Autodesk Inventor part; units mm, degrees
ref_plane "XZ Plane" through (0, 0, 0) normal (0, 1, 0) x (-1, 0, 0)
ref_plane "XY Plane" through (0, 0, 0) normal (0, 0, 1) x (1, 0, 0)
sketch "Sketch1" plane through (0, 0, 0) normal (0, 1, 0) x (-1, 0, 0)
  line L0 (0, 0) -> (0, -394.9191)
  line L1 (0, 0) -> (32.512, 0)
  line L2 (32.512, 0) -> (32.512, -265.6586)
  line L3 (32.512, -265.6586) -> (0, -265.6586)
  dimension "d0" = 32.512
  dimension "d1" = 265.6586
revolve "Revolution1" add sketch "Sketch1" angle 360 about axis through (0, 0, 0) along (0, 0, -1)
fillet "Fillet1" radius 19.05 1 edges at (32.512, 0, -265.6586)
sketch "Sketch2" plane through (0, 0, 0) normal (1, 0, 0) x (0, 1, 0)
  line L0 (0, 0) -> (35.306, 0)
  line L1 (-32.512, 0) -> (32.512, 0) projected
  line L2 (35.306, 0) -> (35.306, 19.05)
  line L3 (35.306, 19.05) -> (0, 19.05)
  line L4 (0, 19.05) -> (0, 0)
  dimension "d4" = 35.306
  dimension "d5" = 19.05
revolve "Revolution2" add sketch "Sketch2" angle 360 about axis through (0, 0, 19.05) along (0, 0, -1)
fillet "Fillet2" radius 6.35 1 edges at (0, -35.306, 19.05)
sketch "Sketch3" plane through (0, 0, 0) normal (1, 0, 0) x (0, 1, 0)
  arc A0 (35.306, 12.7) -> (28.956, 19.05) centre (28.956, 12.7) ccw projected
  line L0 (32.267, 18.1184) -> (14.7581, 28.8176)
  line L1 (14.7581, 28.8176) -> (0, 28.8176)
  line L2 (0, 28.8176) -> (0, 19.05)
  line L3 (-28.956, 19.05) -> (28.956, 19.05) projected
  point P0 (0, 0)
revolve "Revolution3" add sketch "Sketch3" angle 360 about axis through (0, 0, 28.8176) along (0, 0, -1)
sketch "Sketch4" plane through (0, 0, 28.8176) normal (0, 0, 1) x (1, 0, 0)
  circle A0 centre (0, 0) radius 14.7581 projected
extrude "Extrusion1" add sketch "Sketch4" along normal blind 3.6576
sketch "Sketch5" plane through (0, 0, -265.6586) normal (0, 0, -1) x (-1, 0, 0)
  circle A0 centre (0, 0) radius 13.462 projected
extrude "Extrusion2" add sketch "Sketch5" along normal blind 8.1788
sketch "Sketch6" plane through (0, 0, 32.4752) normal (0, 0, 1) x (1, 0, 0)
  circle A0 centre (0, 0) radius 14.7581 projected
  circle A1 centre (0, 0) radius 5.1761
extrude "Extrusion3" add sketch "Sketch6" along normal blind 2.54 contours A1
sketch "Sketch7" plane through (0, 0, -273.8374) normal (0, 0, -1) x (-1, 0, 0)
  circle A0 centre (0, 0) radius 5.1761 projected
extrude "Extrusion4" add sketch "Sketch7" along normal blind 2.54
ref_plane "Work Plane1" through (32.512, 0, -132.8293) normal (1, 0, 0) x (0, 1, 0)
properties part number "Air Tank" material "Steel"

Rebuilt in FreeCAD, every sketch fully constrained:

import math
import FreeCAD as App
import Part
import Sketcher
Q = App.Units.Quantity


def edges_at(feature, points):
    """Names of the edges that pass closest to the given points."""
    edges = feature.Shape.Edges
    near = lambda p: min(range(len(edges)), key=lambda i: edges[i].distToShape(Part.Vertex(*p))[0])
    return sorted({f"Edge{near(p) + 1}" for p in points})

doc = App.newDocument("Part")
params = doc.addObject("Spreadsheet::Sheet", "Params")
for row, (alias, value) in enumerate([
    ("sketch1_width", "1.28 in"),
    ("sketch1_height", "10.459 in"),
    ("revolution_angle", "360 deg"),
    ("fillet_radius", "0.75 in"),
    ("sketch2_width", "1.39 in"),
    ("sketch2_height", "0.75 in"),
    ("revolution2_angle", "360 deg"),
    ("fillet2_radius", "0.25 in"),
    ("sketch3_radius", "0.25 in"),
    ("sketch3_width", "1.14 in"),
    ("revolution3_angle", "360 deg"),
    ("pad1_length", "0.144 in"),
    ("sketch5_diameter", "1.06 in"),
    ("pad2_length", "0.322 in"),
    ("pad3_length", "0.1 in"),
    ("pad4_length", "0.1 in"),
], start=1):
    params.set(f"A{row}", alias)
    params.set(f"B{row}", "=" + value)
    params.setAlias(f"B{row}", alias)

body = doc.addObject("PartDesign::Body", "Body")

# Sketch on XZ plane
sketch1 = body.newObject("Sketcher::SketchObject", "Sketch")
sketch1.AttachmentSupport = (doc.getObject("XZ_Plane"), [""])
sketch1.MapMode = "FlatFace"
sketch1.addGeometry(Part.LineSegment(App.Vector(-33, 0, 0), App.Vector(0, 0, 0)), False)
sketch1.addGeometry(Part.LineSegment(App.Vector(0, 0, 0), App.Vector(0, -266, 0)), False)
sketch1.addGeometry(Part.LineSegment(App.Vector(0, -266, 0), App.Vector(-33, -266, 0)), False)
sketch1.addGeometry(Part.LineSegment(App.Vector(-33, -266, 0), App.Vector(-33, 0, 0)), False)
sketch1.addConstraint(Sketcher.Constraint("Coincident", 0, 2, 1, 1))
sketch1.addConstraint(Sketcher.Constraint("Coincident", 1, 2, 2, 1))
sketch1.addConstraint(Sketcher.Constraint("Coincident", 2, 2, 3, 1))
sketch1.addConstraint(Sketcher.Constraint("Coincident", 3, 2, 0, 1))
sketch1.addConstraint(Sketcher.Constraint("Horizontal", 0))
sketch1.addConstraint(Sketcher.Constraint("Vertical", 1))
sketch1.addConstraint(Sketcher.Constraint("Horizontal", 2))
sketch1.addConstraint(Sketcher.Constraint("Vertical", 3))
sketch1.addConstraint(Sketcher.Constraint("Coincident", 0, 2, -1, 1))
sketch1.addConstraint(Sketcher.Constraint("DistanceX", 0, 1, 0, 2, Q("1.28 in")))
sketch1.addConstraint(Sketcher.Constraint("DistanceY", 1, 2, 1, 1, Q("10.459 in")))
sketch1.setExpression("Constraints[9]", "Params.sketch1_width")
sketch1.setExpression("Constraints[10]", "Params.sketch1_height")
revolution = body.newObject("PartDesign::Revolution", "Revolution")
revolution.Profile = sketch1
revolution.ReferenceAxis = (sketch1, ["V_Axis"])
revolution.setExpression("Angle", "Params.revolution_angle")
doc.recompute()

fillet = body.newObject("PartDesign::Fillet", "Fillet")
fillet.Base = (revolution, edges_at(revolution, [(32.512, 0, -265.659)]))
fillet.setExpression("Radius", "Params.fillet_radius")

# Sketch on YZ plane
sketch2 = body.newObject("Sketcher::SketchObject", "Sketch001")
sketch2.AttachmentSupport = (doc.getObject("YZ_Plane"), [""])
sketch2.MapMode = "FlatFace"
sketch2.addGeometry(Part.LineSegment(App.Vector(0, 19, 0), App.Vector(0, 0, 0)), False)
sketch2.addGeometry(Part.LineSegment(App.Vector(0, 0, 0), App.Vector(35, 0, 0)), False)
sketch2.addGeometry(Part.LineSegment(App.Vector(35, 0, 0), App.Vector(35, 19, 0)), False)
sketch2.addGeometry(Part.LineSegment(App.Vector(35, 19, 0), App.Vector(0, 19, 0)), False)
sketch2.addConstraint(Sketcher.Constraint("Coincident", 0, 2, 1, 1))
sketch2.addConstraint(Sketcher.Constraint("Coincident", 1, 2, 2, 1))
sketch2.addConstraint(Sketcher.Constraint("Coincident", 2, 2, 3, 1))
sketch2.addConstraint(Sketcher.Constraint("Coincident", 3, 2, 0, 1))
sketch2.addConstraint(Sketcher.Constraint("Vertical", 0))
sketch2.addConstraint(Sketcher.Constraint("Horizontal", 1))
sketch2.addConstraint(Sketcher.Constraint("Vertical", 2))
sketch2.addConstraint(Sketcher.Constraint("Horizontal", 3))
sketch2.addConstraint(Sketcher.Constraint("Coincident", 0, 2, -1, 1))
sketch2.addConstraint(Sketcher.Constraint("DistanceX", 1, 1, 1, 2, Q("1.39 in")))
sketch2.addConstraint(Sketcher.Constraint("DistanceY", 0, 2, 0, 1, Q("0.75 in")))
sketch2.setExpression("Constraints[9]", "Params.sketch2_width")
sketch2.setExpression("Constraints[10]", "Params.sketch2_height")
revolution2 = body.newObject("PartDesign::Revolution", "Revolution001")
revolution2.Profile = sketch2
revolution2.ReferenceAxis = (sketch2, ["V_Axis"])
revolution2.setExpression("Angle", "Params.revolution2_angle")
doc.recompute()

fillet2 = body.newObject("PartDesign::Fillet", "Fillet001")
fillet2.Base = (revolution2, edges_at(revolution2, [(0, -35.306, 19.05)]))
fillet2.setExpression("Radius", "Params.fillet2_radius")

# Sketch on YZ plane
sketch3 = body.newObject("Sketcher::SketchObject", "Sketch002")
sketch3.AttachmentSupport = (doc.getObject("YZ_Plane"), [""])
sketch3.MapMode = "FlatFace"
sketch3.addGeometry(Part.ArcOfCircle(Part.Circle(App.Vector(29, 12.7, 0), App.Vector(0, 0, 1), 6.3), math.radians(59), math.radians(90)), False)
sketch3.addGeometry(Part.LineSegment(App.Vector(32.3, 18.1, 0), App.Vector(14.8, 28.8, 0)), False)
sketch3.addGeometry(Part.LineSegment(App.Vector(14.8, 28.8, 0), App.Vector(0, 28.8, 0)), False)
sketch3.addGeometry(Part.LineSegment(App.Vector(0, 28.8, 0), App.Vector(0, 19.1, 0)), False)
sketch3.addGeometry(Part.LineSegment(App.Vector(0, 19.1, 0), App.Vector(29, 19.1, 0)), False)
sketch3.addConstraint(Sketcher.Constraint("Tangent", 0, 1, 1, 1))
sketch3.addConstraint(Sketcher.Constraint("Coincident", 1, 2, 2, 1))
sketch3.addConstraint(Sketcher.Constraint("Coincident", 2, 2, 3, 1))
sketch3.addConstraint(Sketcher.Constraint("Coincident", 3, 2, 4, 1))
sketch3.addConstraint(Sketcher.Constraint("Tangent", 4, 2, 0, 2))
sketch3.addConstraint(Sketcher.Constraint("Horizontal", 2))
sketch3.addConstraint(Sketcher.Constraint("Vertical", 3))
sketch3.addConstraint(Sketcher.Constraint("Horizontal", 4))
sketch3.addConstraint(Sketcher.Constraint("PointOnObject", 2, 2, -2))
sketch3.addConstraint(Sketcher.Constraint("Radius", 0, Q("0.25 in")))
sketch3.addConstraint(Sketcher.Constraint("DistanceX", 4, 1, 4, 2, Q("1.14 in")))
sketch3.addConstraint(Sketcher.Constraint("DistanceY", -1, 1, 0, 3, Q("0.5 in")))
sketch3.addConstraint(Sketcher.Constraint("DistanceX", 2, 2, 2, 1, 14.758))
sketch3.addConstraint(Sketcher.Constraint("DistanceY", 3, 2, 3, 1, 9.7676))
sketch3.setExpression("Constraints[9]", "Params.sketch3_radius")
sketch3.setExpression("Constraints[10]", "Params.sketch3_width")
revolution3 = body.newObject("PartDesign::Revolution", "Revolution002")
revolution3.Profile = sketch3
revolution3.ReferenceAxis = (sketch3, ["V_Axis"])
revolution3.setExpression("Angle", "Params.revolution3_angle")

# Sketch on XY plane
sketch4 = body.newObject("Sketcher::SketchObject", "Sketch003")
sketch4.AttachmentSupport = (doc.getObject("XY_Plane"), [""])
sketch4.MapMode = "FlatFace"
sketch4.AttachmentOffset = App.Placement(App.Vector(0, 0, 28.8176), App.Rotation())
sketch4.addGeometry(Part.Circle(App.Vector(0, 0, 0), App.Vector(0, 0, 1), 15), False)
sketch4.addConstraint(Sketcher.Constraint("Coincident", 0, 3, -1, 1))
sketch4.addConstraint(Sketcher.Constraint("Diameter", 0, 29.5162))
pad1 = body.newObject("PartDesign::Pad", "Pad")
pad1.Profile = sketch4
pad1.setExpression("Length", "Params.pad1_length")

# Sketch on XY plane
sketch5 = body.newObject("Sketcher::SketchObject", "Sketch004")
sketch5.AttachmentSupport = (doc.getObject("XY_Plane"), [""])
sketch5.MapMode = "FlatFace"
sketch5.AttachmentOffset = App.Placement(App.Vector(0, 0, -10.459 * 25.4), App.Rotation())
sketch5.addGeometry(Part.Circle(App.Vector(0, 0, 0), App.Vector(0, 0, 1), 13), False)
sketch5.addConstraint(Sketcher.Constraint("Coincident", 0, 3, -1, 1))
sketch5.addConstraint(Sketcher.Constraint("Diameter", 0, Q("1.06 in")))
sketch5.setExpression("Constraints[1]", "Params.sketch5_diameter")
pad2 = body.newObject("PartDesign::Pad", "Pad001")
pad2.Profile = sketch5
pad2.setExpression("Length", "Params.pad2_length")
pad2.Reversed = True

# Sketch on XY plane
sketch6 = body.newObject("Sketcher::SketchObject", "Sketch005")
sketch6.AttachmentSupport = (doc.getObject("XY_Plane"), [""])
sketch6.MapMode = "FlatFace"
sketch6.AttachmentOffset = App.Placement(App.Vector(0, 0, 32.4752), App.Rotation())
sketch6.addGeometry(Part.Circle(App.Vector(0, 0, 0), App.Vector(0, 0, 1), 5), False)
sketch6.addConstraint(Sketcher.Constraint("Coincident", 0, 3, -1, 1))
sketch6.addConstraint(Sketcher.Constraint("Diameter", 0, 10.3522))
pad3 = body.newObject("PartDesign::Pad", "Pad002")
pad3.Profile = sketch6
pad3.setExpression("Length", "Params.pad3_length")

# Sketch on XY plane
sketch7 = body.newObject("Sketcher::SketchObject", "Sketch006")
sketch7.AttachmentSupport = (doc.getObject("XY_Plane"), [""])
sketch7.MapMode = "FlatFace"
sketch7.AttachmentOffset = App.Placement(App.Vector(0, 0, -10.781 * 25.4), App.Rotation())
sketch7.addGeometry(Part.Circle(App.Vector(0, 0, 0), App.Vector(0, 0, 1), 5), False)
sketch7.addConstraint(Sketcher.Constraint("Coincident", 0, 3, -1, 1))
sketch7.addConstraint(Sketcher.Constraint("Diameter", 0, 10.3522))
pad4 = body.newObject("PartDesign::Pad", "Pad003")
pad4.Profile = sketch7
pad4.setExpression("Length", "Params.pad4_length")
pad4.Reversed = True

doc.recompute()
